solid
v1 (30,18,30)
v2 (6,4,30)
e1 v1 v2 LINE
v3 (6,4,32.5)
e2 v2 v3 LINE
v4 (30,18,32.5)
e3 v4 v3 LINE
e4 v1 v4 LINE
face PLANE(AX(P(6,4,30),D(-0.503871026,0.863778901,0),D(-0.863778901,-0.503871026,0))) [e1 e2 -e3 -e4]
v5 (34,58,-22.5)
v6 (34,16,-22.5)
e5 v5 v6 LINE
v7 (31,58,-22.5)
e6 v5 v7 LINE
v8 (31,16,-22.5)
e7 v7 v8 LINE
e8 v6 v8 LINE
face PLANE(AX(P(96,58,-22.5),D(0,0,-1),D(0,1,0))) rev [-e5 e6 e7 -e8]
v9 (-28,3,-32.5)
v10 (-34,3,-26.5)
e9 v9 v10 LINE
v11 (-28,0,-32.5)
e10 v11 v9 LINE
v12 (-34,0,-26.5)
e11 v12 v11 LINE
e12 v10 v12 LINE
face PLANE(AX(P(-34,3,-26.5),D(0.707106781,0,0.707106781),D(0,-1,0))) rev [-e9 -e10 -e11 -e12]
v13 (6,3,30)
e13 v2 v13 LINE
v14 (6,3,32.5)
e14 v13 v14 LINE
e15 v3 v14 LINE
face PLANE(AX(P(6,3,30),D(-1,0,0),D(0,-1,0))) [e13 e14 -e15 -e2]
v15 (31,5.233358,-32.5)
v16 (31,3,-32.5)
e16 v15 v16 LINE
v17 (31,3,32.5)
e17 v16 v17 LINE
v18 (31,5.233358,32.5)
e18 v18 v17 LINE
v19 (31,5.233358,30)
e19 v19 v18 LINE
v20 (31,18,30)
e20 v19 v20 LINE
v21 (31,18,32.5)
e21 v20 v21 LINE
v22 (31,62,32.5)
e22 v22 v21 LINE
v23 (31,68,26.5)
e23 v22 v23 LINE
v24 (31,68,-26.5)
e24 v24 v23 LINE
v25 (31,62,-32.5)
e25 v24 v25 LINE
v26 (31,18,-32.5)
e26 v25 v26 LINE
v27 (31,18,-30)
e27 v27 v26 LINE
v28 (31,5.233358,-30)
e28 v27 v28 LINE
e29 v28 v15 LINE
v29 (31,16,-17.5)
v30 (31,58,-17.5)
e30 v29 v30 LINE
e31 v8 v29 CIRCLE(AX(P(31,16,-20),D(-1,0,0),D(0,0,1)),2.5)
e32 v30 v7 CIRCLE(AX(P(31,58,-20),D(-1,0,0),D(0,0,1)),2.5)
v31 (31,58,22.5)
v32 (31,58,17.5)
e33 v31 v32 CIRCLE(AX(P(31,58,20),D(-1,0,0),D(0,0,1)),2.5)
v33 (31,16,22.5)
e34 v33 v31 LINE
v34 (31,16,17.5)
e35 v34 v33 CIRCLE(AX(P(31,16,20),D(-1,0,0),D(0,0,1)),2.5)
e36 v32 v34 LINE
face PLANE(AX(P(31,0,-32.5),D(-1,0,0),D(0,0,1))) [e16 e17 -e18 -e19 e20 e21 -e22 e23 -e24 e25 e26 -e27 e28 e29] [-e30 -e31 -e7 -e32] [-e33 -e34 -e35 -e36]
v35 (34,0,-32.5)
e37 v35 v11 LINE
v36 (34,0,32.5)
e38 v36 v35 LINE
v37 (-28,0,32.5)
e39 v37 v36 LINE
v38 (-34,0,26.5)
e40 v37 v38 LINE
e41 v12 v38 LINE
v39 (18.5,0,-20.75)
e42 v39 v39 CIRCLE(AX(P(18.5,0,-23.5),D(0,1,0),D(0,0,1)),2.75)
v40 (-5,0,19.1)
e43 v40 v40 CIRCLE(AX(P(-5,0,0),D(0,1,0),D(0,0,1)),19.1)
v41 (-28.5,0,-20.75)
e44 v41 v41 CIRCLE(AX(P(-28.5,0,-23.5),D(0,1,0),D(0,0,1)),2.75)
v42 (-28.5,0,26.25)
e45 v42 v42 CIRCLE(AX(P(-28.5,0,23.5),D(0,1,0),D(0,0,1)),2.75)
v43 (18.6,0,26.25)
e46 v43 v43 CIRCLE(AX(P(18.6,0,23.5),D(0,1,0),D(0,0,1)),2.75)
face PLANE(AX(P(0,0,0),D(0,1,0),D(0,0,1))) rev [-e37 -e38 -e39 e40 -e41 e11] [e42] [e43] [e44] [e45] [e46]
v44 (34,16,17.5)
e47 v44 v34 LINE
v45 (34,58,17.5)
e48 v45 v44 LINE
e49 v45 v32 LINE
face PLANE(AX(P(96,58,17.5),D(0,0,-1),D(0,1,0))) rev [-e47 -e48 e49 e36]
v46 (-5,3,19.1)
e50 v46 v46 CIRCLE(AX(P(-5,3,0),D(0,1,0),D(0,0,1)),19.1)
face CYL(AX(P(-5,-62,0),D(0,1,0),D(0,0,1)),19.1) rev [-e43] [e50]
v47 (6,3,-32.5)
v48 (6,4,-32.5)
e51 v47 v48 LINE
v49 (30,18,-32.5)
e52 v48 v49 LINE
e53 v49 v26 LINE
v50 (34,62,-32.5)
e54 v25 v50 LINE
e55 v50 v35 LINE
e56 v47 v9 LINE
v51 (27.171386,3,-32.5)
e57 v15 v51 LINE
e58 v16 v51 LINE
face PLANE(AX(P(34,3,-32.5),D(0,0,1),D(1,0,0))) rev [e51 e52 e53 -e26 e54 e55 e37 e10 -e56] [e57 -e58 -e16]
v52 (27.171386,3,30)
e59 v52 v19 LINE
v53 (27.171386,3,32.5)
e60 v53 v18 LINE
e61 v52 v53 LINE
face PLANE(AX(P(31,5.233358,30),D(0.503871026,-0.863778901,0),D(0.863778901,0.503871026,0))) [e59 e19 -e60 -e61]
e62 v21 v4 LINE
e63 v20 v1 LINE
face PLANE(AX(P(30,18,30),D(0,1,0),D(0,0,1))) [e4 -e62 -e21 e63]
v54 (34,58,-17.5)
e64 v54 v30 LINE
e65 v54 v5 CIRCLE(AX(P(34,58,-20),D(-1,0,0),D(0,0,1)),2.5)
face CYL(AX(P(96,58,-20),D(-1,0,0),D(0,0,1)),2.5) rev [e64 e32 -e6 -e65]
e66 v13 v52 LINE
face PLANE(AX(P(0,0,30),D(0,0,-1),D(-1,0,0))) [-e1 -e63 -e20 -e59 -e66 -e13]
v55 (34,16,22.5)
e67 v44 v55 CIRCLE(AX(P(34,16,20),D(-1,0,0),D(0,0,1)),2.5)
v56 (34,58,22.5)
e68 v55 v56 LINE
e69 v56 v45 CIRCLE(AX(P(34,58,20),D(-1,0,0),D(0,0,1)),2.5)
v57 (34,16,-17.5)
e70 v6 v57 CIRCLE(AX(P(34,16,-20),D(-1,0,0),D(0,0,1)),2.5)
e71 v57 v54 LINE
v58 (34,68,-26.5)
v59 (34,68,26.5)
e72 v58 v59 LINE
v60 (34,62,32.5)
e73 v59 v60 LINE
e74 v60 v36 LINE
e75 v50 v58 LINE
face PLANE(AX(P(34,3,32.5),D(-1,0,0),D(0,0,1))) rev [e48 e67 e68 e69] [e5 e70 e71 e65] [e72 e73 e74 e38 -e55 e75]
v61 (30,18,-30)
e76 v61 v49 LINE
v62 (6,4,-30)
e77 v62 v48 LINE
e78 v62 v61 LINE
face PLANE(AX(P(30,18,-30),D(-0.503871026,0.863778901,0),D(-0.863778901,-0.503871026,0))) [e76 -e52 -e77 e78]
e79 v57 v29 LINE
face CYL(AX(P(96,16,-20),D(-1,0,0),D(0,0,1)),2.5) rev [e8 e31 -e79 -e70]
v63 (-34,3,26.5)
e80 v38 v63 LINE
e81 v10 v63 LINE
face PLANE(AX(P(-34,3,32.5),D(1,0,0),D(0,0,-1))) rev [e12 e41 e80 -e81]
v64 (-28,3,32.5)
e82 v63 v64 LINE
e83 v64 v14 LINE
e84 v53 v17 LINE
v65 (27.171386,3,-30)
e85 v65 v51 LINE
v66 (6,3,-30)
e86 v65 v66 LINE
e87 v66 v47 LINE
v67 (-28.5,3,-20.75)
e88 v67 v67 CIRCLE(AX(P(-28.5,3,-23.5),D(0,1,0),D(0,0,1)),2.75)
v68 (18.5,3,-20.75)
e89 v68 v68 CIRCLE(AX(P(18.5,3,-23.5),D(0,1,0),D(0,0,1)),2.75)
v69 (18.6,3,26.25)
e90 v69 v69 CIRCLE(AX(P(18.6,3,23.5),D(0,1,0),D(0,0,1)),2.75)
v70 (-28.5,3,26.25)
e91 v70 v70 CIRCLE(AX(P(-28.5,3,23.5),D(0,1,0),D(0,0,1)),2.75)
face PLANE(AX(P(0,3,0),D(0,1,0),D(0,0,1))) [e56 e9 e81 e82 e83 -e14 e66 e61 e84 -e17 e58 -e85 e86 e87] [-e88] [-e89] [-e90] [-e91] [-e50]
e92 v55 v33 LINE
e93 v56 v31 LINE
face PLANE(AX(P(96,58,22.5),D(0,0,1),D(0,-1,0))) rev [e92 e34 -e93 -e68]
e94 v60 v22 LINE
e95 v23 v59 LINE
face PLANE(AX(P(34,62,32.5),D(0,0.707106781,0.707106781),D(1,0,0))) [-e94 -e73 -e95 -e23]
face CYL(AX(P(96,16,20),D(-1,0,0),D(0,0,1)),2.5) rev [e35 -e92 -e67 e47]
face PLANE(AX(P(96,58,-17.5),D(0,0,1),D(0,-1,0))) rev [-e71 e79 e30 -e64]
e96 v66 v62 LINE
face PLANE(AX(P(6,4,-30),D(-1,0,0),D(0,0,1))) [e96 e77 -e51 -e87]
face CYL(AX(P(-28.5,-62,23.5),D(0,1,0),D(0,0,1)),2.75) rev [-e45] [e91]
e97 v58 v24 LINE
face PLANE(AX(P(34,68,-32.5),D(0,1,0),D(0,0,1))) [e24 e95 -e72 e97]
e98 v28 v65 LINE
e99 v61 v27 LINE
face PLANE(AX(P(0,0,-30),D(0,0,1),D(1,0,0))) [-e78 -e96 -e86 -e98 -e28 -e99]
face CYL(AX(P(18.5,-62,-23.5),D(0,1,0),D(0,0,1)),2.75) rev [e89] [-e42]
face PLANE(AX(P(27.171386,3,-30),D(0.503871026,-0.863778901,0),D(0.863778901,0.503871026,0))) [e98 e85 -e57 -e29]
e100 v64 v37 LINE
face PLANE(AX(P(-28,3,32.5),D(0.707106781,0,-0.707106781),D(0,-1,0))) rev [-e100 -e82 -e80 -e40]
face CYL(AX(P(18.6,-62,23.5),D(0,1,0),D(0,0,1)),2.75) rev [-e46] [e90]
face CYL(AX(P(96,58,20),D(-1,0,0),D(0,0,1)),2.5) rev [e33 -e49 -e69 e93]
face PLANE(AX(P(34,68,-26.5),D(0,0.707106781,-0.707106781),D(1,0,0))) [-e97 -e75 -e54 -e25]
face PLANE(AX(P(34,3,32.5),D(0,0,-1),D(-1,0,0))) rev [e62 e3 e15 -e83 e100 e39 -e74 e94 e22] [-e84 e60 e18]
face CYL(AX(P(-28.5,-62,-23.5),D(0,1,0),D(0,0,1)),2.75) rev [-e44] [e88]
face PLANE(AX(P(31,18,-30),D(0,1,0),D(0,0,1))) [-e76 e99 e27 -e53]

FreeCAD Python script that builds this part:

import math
import FreeCAD as App
import Part
import Sketcher
from FreeCAD import Vector


def edges_at(feature, points):
    """Names of the edges that pass closest to the given points."""
    edges = feature.Shape.Edges
    near = lambda p: min(range(len(edges)), key=lambda i: edges[i].distToShape(Part.Vertex(*p))[0])
    return sorted({f"Edge{near(p) + 1}" for p in points})

doc = App.newDocument("Part")
body = doc.addObject("PartDesign::Body", "Body")

sketch1 = body.newObject("Sketcher::SketchObject", "Sketch")
sketch1.AttachmentSupport = (doc.getObject("XZ_Plane"), [""])
sketch1.MapMode = "FlatFace"
sketch1.addGeometry(Part.LineSegment(Vector(-34, -32, 0), Vector(-34, 32, 0)), False)
sketch1.addGeometry(Part.LineSegment(Vector(-34, 32, 0), Vector(34, 32, 0)), False)
sketch1.addGeometry(Part.LineSegment(Vector(34, 32, 0), Vector(34, -32, 0)), False)
sketch1.addGeometry(Part.LineSegment(Vector(34, -32, 0), Vector(-34, -32, 0)), False)
sketch1.addConstraint(Sketcher.Constraint("Coincident", 0, 2, 1, 1))
sketch1.addConstraint(Sketcher.Constraint("Coincident", 1, 2, 2, 1))
sketch1.addConstraint(Sketcher.Constraint("Coincident", 2, 2, 3, 1))
sketch1.addConstraint(Sketcher.Constraint("Coincident", 3, 2, 0, 1))
sketch1.addConstraint(Sketcher.Constraint("Vertical", 0))
sketch1.addConstraint(Sketcher.Constraint("Horizontal", 1))
sketch1.addConstraint(Sketcher.Constraint("Vertical", 2))
sketch1.addConstraint(Sketcher.Constraint("Horizontal", 3))
sketch1.addConstraint(Sketcher.Constraint("Symmetric", 0, 2, 2, 2, -1, 1))
sketch1.addConstraint(Sketcher.Constraint("DistanceX", 1, 1, 1, 2, 68.0))
sketch1.addConstraint(Sketcher.Constraint("DistanceY", 0, 1, 0, 2, 65.0))
pad1 = body.newObject("PartDesign::Pad", "Pad")
pad1.Profile = sketch1
pad1.Length = 3
pad1.Reversed = True

sketch2 = body.newObject("Sketcher::SketchObject", "Sketch001")
sketch2.AttachmentSupport = (doc.getObject("XY_Plane"), [""])
sketch2.MapMode = "FlatFace"
sketch2.AttachmentOffset = App.Placement(Vector(0, 0, 32.5), App.Rotation())
sketch2.addGeometry(Part.LineSegment(Vector(31, 68, 0), Vector(31, 0, 0)), False)
sketch2.addGeometry(Part.LineSegment(Vector(31, 0, 0), Vector(34, 0, 0)), False)
sketch2.addGeometry(Part.LineSegment(Vector(34, 0, 0), Vector(34, 68, 0)), False)
sketch2.addGeometry(Part.LineSegment(Vector(34, 68, 0), Vector(31, 68, 0)), False)
sketch2.addConstraint(Sketcher.Constraint("Coincident", 0, 2, 1, 1))
sketch2.addConstraint(Sketcher.Constraint("Coincident", 1, 2, 2, 1))
sketch2.addConstraint(Sketcher.Constraint("Coincident", 2, 2, 3, 1))
sketch2.addConstraint(Sketcher.Constraint("Coincident", 3, 2, 0, 1))
sketch2.addConstraint(Sketcher.Constraint("Vertical", 0))
sketch2.addConstraint(Sketcher.Constraint("Horizontal", 1))
sketch2.addConstraint(Sketcher.Constraint("Vertical", 2))
sketch2.addConstraint(Sketcher.Constraint("Horizontal", 3))
sketch2.addConstraint(Sketcher.Constraint("PointOnObject", 0, 2, -1))
sketch2.addConstraint(Sketcher.Constraint("DistanceX", 1, 1, 1, 2, 3.0))
sketch2.addConstraint(Sketcher.Constraint("DistanceY", 0, 2, 0, 1, 68.0))
sketch2.addConstraint(Sketcher.Constraint("DistanceX", -1, 1, 0, 2, 31.0))
pad2 = body.newObject("PartDesign::Pad", "Pad001")
pad2.Profile = sketch2
pad2.Length = 65
pad2.Reversed = True
doc.recompute()

chamfer = body.newObject("PartDesign::Chamfer", "Chamfer")
chamfer.Base = (pad2, edges_at(pad2, [
    (32.5, 68, -32.5),
    (32.5, 68, 32.5),
    (-34, 1.5, -32.5),
    (-34, 1.5, 32.5),
]))
chamfer.Size = 6

sketch3 = body.newObject("Sketcher::SketchObject", "Sketch002")
sketch3.AttachmentSupport = (doc.getObject("XZ_Plane"), [""])
sketch3.MapMode = "FlatFace"
sketch3.AttachmentOffset = App.Placement(Vector(0, 0, -3), App.Rotation())
sketch3.addGeometry(Part.Circle(Vector(-28.5, -23.5, 0), Vector(0, 0, 1), 2.8), False)
sketch3.addGeometry(Part.Circle(Vector(-28.5, 23.5, 0), Vector(0, 0, 1), 2.8), False)
sketch3.addGeometry(Part.Circle(Vector(18.6, 23.5, 0), Vector(0, 0, 1), 2.8), False)
sketch3.addGeometry(Part.Circle(Vector(18.5, -23.5, 0), Vector(0, 0, 1), 2.8), False)
sketch3.addGeometry(Part.Circle(Vector(-5, 0, 0), Vector(0, 0, 1), 19.1), False)
sketch3.addConstraint(Sketcher.Constraint("Equal", 0, 1))
sketch3.addConstraint(Sketcher.Constraint("Equal", 1, 2))
sketch3.addConstraint(Sketcher.Constraint("Equal", 2, 3))
sketch3.addConstraint(Sketcher.Constraint("Symmetric", 0, 3, 1, 3, -1))
sketch3.addConstraint(Sketcher.Constraint("PointOnObject", 4, 3, -1))
sketch3.addConstraint(Sketcher.Constraint("Horizontal", 1, 3, 2, 3))
sketch3.addConstraint(Sketcher.Constraint("Horizontal", 0, 3, 3, 3))
sketch3.addConstraint(Sketcher.Constraint("Diameter", 0, 5.5))
sketch3.addConstraint(Sketcher.Constraint("Diameter", 4, 38.2))
sketch3.addConstraint(Sketcher.Constraint("DistanceX", 4, 3, -1, 1, 5.0))
sketch3.addConstraint(Sketcher.Constraint("DistanceY", 0, 3, 1, 3, 47.0))
sketch3.addConstraint(Sketcher.Constraint("DistanceX", 0, 3, 3, 3, 47.0))
sketch3.addConstraint(Sketcher.Constraint("DistanceX", 0, 3, -1, 1, 28.5))
sketch3.addConstraint(Sketcher.Constraint("DistanceX", -1, 1, 2, 3, 18.6))
pocket1 = body.newObject("PartDesign::Pocket", "Pocket")
pocket1.Profile = sketch3
pocket1.Length = 65
pocket1.Reversed = True

sketch4 = body.newObject("Sketcher::SketchObject", "Sketch003")
sketch4.AttachmentSupport = (doc.getObject("YZ_Plane"), [""])
sketch4.MapMode = "FlatFace"
sketch4.AttachmentOffset = App.Placement(Vector(0, 0, 31), App.Rotation())
sketch4.addGeometry(Part.LineSegment(Vector(16, -17.5, 0), Vector(58, -17.5, 0)), False)
sketch4.addGeometry(Part.ArcOfCircle(Part.Circle(Vector(58, -20, 0), Vector(0, 0, 1), 2.5), math.radians(-90), math.radians(90)), False)
sketch4.addGeometry(Part.LineSegment(Vector(58, -22.5, 0), Vector(16, -22.5, 0)), False)
sketch4.addGeometry(Part.ArcOfCircle(Part.Circle(Vector(16, -20, 0), Vector(0, 0, 1), 2.5), math.radians(90), math.radians(270)), False)
sketch4.addGeometry(Part.LineSegment(Vector(16, 22.5, 0), Vector(58, 22.5, 0)), False)
sketch4.addGeometry(Part.ArcOfCircle(Part.Circle(Vector(58, 20, 0), Vector(0, 0, 1), 2.5), math.radians(-90), math.radians(90)), False)
sketch4.addGeometry(Part.LineSegment(Vector(58, 17.5, 0), Vector(16, 17.5, 0)), False)
sketch4.addGeometry(Part.ArcOfCircle(Part.Circle(Vector(16, 20, 0), Vector(0, 0, 1), 2.5), math.radians(90), math.radians(270)), False)
sketch4.addConstraint(Sketcher.Constraint("Tangent", 0, 2, 1, 2))
sketch4.addConstraint(Sketcher.Constraint("Tangent", 1, 1, 2, 1))
sketch4.addConstraint(Sketcher.Constraint("Tangent", 2, 2, 3, 2))
sketch4.addConstraint(Sketcher.Constraint("Tangent", 3, 1, 0, 1))
sketch4.addConstraint(Sketcher.Constraint("Tangent", 4, 2, 5, 2))
sketch4.addConstraint(Sketcher.Constraint("Tangent", 5, 1, 6, 1))
sketch4.addConstraint(Sketcher.Constraint("Tangent", 6, 2, 7, 2))
sketch4.addConstraint(Sketcher.Constraint("Tangent", 7, 1, 4, 1))
sketch4.addConstraint(Sketcher.Constraint("Horizontal", 0))
sketch4.addConstraint(Sketcher.Constraint("Horizontal", 2))
sketch4.addConstraint(Sketcher.Constraint("Horizontal", 4))
sketch4.addConstraint(Sketcher.Constraint("Horizontal", 6))
sketch4.addConstraint(Sketcher.Constraint("Equal", 3, 5))
sketch4.addConstraint(Sketcher.Constraint("Symmetric", 1, 3, 5, 3, -1))
sketch4.addConstraint(Sketcher.Constraint("Vertical", 3, 3, 7, 3))
sketch4.addConstraint(Sketcher.Constraint("Radius", 1, 2.5))
sketch4.addConstraint(Sketcher.Constraint("DistanceX", 0, 1, 0, 2, 42.0))
sketch4.addConstraint(Sketcher.Constraint("DistanceX", -1, 1, 1, 3, 58.0))
sketch4.addConstraint(Sketcher.Constraint("DistanceY", 1, 3, -1, 1, 20.0))
pocket2 = body.newObject("PartDesign::Pocket", "Pocket001")
pocket2.Profile = sketch4
pocket2.Length = 65
pocket2.Reversed = True

sketch5 = body.newObject("Sketcher::SketchObject", "Sketch004")
sketch5.AttachmentSupport = (doc.getObject("XY_Plane"), [""])
sketch5.MapMode = "FlatFace"
sketch5.AttachmentOffset = App.Placement(Vector(0, 0, 32.5), App.Rotation())
sketch5.addGeometry(Part.LineSegment(Vector(6, 4, 0), Vector(6, 3, 0)), False)
sketch5.addGeometry(Part.LineSegment(Vector(6, 3, 0), Vector(27.2, 3, 0)), False)
sketch5.addGeometry(Part.LineSegment(Vector(27.2, 3, 0), Vector(31, 5.2, 0)), False)
sketch5.addGeometry(Part.LineSegment(Vector(31, 5.2, 0), Vector(31, 18, 0)), False)
sketch5.addGeometry(Part.LineSegment(Vector(31, 18, 0), Vector(30, 18, 0)), False)
sketch5.addGeometry(Part.LineSegment(Vector(30, 18, 0), Vector(6, 4, 0)), False)
sketch5.addConstraint(Sketcher.Constraint("Coincident", 0, 2, 1, 1))
sketch5.addConstraint(Sketcher.Constraint("Coincident", 1, 2, 2, 1))
sketch5.addConstraint(Sketcher.Constraint("Coincident", 2, 2, 3, 1))
sketch5.addConstraint(Sketcher.Constraint("Coincident", 3, 2, 4, 1))
sketch5.addConstraint(Sketcher.Constraint("Coincident", 4, 2, 5, 1))
sketch5.addConstraint(Sketcher.Constraint("Coincident", 5, 2, 0, 1))
sketch5.addConstraint(Sketcher.Constraint("Vertical", 0))
sketch5.addConstraint(Sketcher.Constraint("Horizontal", 1))
sketch5.addConstraint(Sketcher.Constraint("Vertical", 3))
sketch5.addConstraint(Sketcher.Constraint("Horizontal", 4))
sketch5.addConstraint(Sketcher.Constraint("Parallel", 2, 5))
sketch5.addConstraint(Sketcher.Constraint("Equal", 4, 0))
sketch5.addConstraint(Sketcher.Constraint("DistanceX", 4, 2, 4, 1, 1.0))
sketch5.addConstraint(Sketcher.Constraint("DistanceX", -1, 1, 0, 2, 6.0))
sketch5.addConstraint(Sketcher.Constraint("DistanceY", -1, 1, 0, 2, 3.0))
sketch5.addConstraint(Sketcher.Constraint("DistanceX", -1, 1, 2, 2, 31.0))
sketch5.addConstraint(Sketcher.Constraint("DistanceY", -1, 1, 3, 2, 18.0))
sketch5.addConstraint(Sketcher.Constraint("Distance", 2, 4.432401))
pad3 = body.newObject("PartDesign::Pad", "Pad002")
pad3.Profile = sketch5
pad3.Length = 2.5
pad3.Reversed = True

sketch6 = body.newObject("Sketcher::SketchObject", "Sketch005")
sketch6.AttachmentSupport = (doc.getObject("XY_Plane"), [""])
sketch6.MapMode = "FlatFace"
sketch6.AttachmentOffset = App.Placement(Vector(0, 0, -32.5), App.Rotation())
sketch6.addGeometry(Part.LineSegment(Vector(30, 18, 0), Vector(31, 18, 0)), False)
sketch6.addGeometry(Part.LineSegment(Vector(31, 18, 0), Vector(31, 5.2, 0)), False)
sketch6.addGeometry(Part.LineSegment(Vector(31, 5.2, 0), Vector(27.2, 3, 0)), False)
sketch6.addGeometry(Part.LineSegment(Vector(27.2, 3, 0), Vector(6, 3, 0)), False)
sketch6.addGeometry(Part.LineSegment(Vector(6, 3, 0), Vector(6, 4, 0)), False)
sketch6.addGeometry(Part.LineSegment(Vector(6, 4, 0), Vector(30, 18, 0)), False)
sketch6.addConstraint(Sketcher.Constraint("Coincident", 0, 2, 1, 1))
sketch6.addConstraint(Sketcher.Constraint("Coincident", 1, 2, 2, 1))
sketch6.addConstraint(Sketcher.Constraint("Coincident", 2, 2, 3, 1))
sketch6.addConstraint(Sketcher.Constraint("Coincident", 3, 2, 4, 1))
sketch6.addConstraint(Sketcher.Constraint("Coincident", 4, 2, 5, 1))
sketch6.addConstraint(Sketcher.Constraint("Coincident", 5, 2, 0, 1))
sketch6.addConstraint(Sketcher.Constraint("Horizontal", 0))
sketch6.addConstraint(Sketcher.Constraint("Vertical", 1))
sketch6.addConstraint(Sketcher.Constraint("Horizontal", 3))
sketch6.addConstraint(Sketcher.Constraint("Vertical", 4))
sketch6.addConstraint(Sketcher.Constraint("Parallel", 2, 5))
sketch6.addConstraint(Sketcher.Constraint("Equal", 0, 4))
sketch6.addConstraint(Sketcher.Constraint("DistanceX", 0, 1, 0, 2, 1.0))
sketch6.addConstraint(Sketcher.Constraint("DistanceX", -1, 1, 0, 2, 31.0))
sketch6.addConstraint(Sketcher.Constraint("DistanceY", -1, 1, 0, 2, 18.0))
sketch6.addConstraint(Sketcher.Constraint("DistanceY", -1, 1, 2, 2, 3.0))
sketch6.addConstraint(Sketcher.Constraint("DistanceX", -1, 1, 3, 2, 6.0))
sketch6.addConstraint(Sketcher.Constraint("Distance", 2, 4.432401))
pad4 = body.newObject("PartDesign::Pad", "Pad003")
pad4.Profile = sketch6
pad4.Length = 2.5

doc.recompute()
